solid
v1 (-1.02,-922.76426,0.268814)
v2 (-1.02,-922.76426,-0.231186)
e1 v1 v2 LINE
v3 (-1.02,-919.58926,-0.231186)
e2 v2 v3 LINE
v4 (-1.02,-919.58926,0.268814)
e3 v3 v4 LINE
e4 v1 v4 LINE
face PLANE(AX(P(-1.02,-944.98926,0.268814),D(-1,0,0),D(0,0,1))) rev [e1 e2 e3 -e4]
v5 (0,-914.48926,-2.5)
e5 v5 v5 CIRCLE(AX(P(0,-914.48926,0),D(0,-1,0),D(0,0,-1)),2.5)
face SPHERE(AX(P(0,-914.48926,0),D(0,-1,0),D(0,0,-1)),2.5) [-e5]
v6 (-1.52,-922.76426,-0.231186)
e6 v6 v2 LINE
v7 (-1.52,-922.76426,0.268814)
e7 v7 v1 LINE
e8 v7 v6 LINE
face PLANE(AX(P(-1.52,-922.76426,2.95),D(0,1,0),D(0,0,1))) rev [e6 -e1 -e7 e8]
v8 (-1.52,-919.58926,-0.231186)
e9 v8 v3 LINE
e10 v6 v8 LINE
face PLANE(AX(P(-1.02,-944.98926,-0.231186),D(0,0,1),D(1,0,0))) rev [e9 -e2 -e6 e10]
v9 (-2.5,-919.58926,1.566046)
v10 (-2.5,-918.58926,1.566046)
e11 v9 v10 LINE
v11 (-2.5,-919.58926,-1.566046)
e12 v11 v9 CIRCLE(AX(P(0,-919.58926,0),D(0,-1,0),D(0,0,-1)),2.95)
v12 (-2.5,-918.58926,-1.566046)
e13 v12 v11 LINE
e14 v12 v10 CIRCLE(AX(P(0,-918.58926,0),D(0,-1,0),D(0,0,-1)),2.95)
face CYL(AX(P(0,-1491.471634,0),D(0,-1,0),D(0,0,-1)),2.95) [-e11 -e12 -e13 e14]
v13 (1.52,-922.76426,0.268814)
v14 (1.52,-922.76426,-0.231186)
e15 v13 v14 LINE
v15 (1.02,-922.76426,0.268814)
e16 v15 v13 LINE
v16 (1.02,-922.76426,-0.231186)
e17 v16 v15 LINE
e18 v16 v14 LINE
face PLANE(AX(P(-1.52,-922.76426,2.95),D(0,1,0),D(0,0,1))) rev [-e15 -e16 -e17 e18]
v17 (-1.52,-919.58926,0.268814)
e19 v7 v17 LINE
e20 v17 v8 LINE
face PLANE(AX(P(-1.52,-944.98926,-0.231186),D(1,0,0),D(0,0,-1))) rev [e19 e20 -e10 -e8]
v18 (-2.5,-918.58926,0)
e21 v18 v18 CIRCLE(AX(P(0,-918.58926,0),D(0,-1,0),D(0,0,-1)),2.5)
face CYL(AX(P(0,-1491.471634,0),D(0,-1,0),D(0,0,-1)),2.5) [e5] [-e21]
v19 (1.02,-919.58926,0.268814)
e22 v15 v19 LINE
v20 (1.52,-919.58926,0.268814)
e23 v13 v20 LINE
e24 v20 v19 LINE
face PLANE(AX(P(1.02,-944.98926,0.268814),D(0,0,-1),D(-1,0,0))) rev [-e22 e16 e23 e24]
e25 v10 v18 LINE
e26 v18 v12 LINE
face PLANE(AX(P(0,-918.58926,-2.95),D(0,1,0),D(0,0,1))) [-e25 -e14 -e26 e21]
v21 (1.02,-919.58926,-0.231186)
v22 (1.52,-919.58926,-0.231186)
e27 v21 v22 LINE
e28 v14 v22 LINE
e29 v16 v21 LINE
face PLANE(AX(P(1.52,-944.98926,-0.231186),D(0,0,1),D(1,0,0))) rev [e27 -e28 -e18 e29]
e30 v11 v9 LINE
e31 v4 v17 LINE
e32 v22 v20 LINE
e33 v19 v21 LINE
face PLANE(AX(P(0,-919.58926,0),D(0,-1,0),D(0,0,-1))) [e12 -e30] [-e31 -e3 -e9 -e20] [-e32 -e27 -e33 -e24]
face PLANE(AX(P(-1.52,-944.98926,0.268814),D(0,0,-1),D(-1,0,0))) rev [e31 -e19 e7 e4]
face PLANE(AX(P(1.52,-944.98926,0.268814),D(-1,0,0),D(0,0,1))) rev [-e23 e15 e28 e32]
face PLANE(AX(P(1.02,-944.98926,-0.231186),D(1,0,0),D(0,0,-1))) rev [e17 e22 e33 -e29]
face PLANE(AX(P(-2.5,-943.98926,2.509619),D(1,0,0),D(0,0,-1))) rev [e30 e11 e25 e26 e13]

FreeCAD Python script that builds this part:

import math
import FreeCAD as App
import Part
import Sketcher

V = App.Vector


def add_polygon(sketch, points):
    """Adds a closed chain of lines whose ends are joined by coincident constraints."""
    first, n = sketch.GeometryCount, len(points)
    for a, b in zip(points, points[1:] + points[:1]):
        sketch.addGeometry(Part.LineSegment(App.Vector(*a, 0), App.Vector(*b, 0)), False)
    for i in range(n):
        sketch.addConstraint(Sketcher.Constraint("Coincident", first + i, 2, first + (i + 1) % n, 1))

doc = App.newDocument("Part")
body = doc.addObject("PartDesign::Body", "Body")

sketch1 = body.newObject("Sketcher::SketchObject", "Sketch")
sketch1.AttachmentSupport = (doc.getObject("YZ_Plane"), [""])
sketch1.MapMode = "FlatFace"
sketch1.addGeometry([
    Part.LineSegment(V(-919.58926, 0, 0), V(-919.58926, -2.95, 0)),
    Part.LineSegment(V(-919.58926, -2.95, 0), V(-918.58926, -2.95, 0)),
    Part.LineSegment(V(-918.58926, -2.95, 0), V(-918.58926, -2.5, 0)),
    Part.LineSegment(V(-918.58926, -2.5, 0), V(-914.48926, -2.5, 0)),
    Part.ArcOfCircle(Part.Circle(V(-914.48926, 0, 0), V(0, 0, 1), 2.5), math.radians(-90), math.radians(0)),
    Part.LineSegment(V(-911.98926, 0, 0), V(-919.58926, 0, 0)),
], False)
sketch1.addConstraint([
    Sketcher.Constraint("Coincident", 0, 2, 1, 1),
    Sketcher.Constraint("Coincident", 1, 2, 2, 1),
    Sketcher.Constraint("Coincident", 2, 2, 3, 1),
    Sketcher.Constraint("Tangent", 3, 2, 4, 1),
    Sketcher.Constraint("Coincident", 4, 2, 5, 1),
    Sketcher.Constraint("Coincident", 5, 2, 0, 1),
    Sketcher.Constraint("Vertical", 0),
    Sketcher.Constraint("Horizontal", 1),
    Sketcher.Constraint("Vertical", 2),
    Sketcher.Constraint("Horizontal", 3),
    Sketcher.Constraint("Horizontal", 5),
    Sketcher.Constraint("PointOnObject", 4, 3, -1),
    Sketcher.Constraint("PointOnObject", 4, 2, -1),
    Sketcher.Constraint("Radius", 4, 2.5),
    Sketcher.Constraint("DistanceX", 1, 1, 1, 2, 1.0),
    Sketcher.Constraint("DistanceX", 3, 1, 3, 2, 4.1),
    Sketcher.Constraint("DistanceY", 0, 2, 0, 1, 2.95),
    Sketcher.Constraint("DistanceX", 4, 3, -1, 1, 914.48926),
])
revolution = body.newObject("PartDesign::Revolution", "Revolution")
revolution.Profile = sketch1
revolution.ReferenceAxis = (sketch1, ["H_Axis"])
revolution.Angle = 360

sketch2 = body.newObject("Sketcher::SketchObject", "Sketch001")
sketch2.AttachmentSupport = (doc.getObject("XZ_Plane"), [""])
sketch2.MapMode = "FlatFace"
sketch2.AttachmentOffset = App.Placement(V(0, 0, 919.58926), App.Rotation())
add_polygon(sketch2, [(1.02, 0.268814), (1.02, -0.231186), (1.52, -0.231186), (1.52, 0.268814)])
add_polygon(sketch2, [(-1.52, 0.268814), (-1.52, -0.231186), (-1.02, -0.231186), (-1.02, 0.268814)])
sketch2.addConstraint([
    Sketcher.Constraint("Vertical", 0),
    Sketcher.Constraint("Horizontal", 1),
    Sketcher.Constraint("Vertical", 2),
    Sketcher.Constraint("Horizontal", 3),
    Sketcher.Constraint("Vertical", 4),
    Sketcher.Constraint("Horizontal", 5),
    Sketcher.Constraint("Vertical", 6),
    Sketcher.Constraint("Horizontal", 7),
    Sketcher.Constraint("Symmetric", 1, 2, 4, 2, -2),
    Sketcher.Constraint("Symmetric", 3, 2, 6, 2, -2),
    Sketcher.Constraint("Equal", 7, 0),
    Sketcher.Constraint("DistanceX", 1, 1, 1, 2, 0.5),
    Sketcher.Constraint("DistanceX", -1, 1, 0, 2, 1.02),
    Sketcher.Constraint("DistanceY", 0, 2, -1, 1, 0.231186),
])
pad1 = body.newObject("PartDesign::Pad", "Pad")
pad1.Profile = sketch2
pad1.Length = 25.4

sketch3 = body.newObject("Sketcher::SketchObject", "Sketch002")
sketch3.AttachmentSupport = (doc.getObject("XZ_Plane"), [""])
sketch3.MapMode = "FlatFace"
sketch3.AttachmentOffset = App.Placement(V(0, 0, 918.58926), App.Rotation())
add_polygon(sketch3, [(-3.412534, -3.076485), (-3.412534, 2.509619), (-2.5, 2.509619), (-2.5, -3.076485)])
sketch3.addConstraint([
    Sketcher.Constraint("Vertical", 0),
    Sketcher.Constraint("Horizontal", 1),
    Sketcher.Constraint("Vertical", 2),
    Sketcher.Constraint("Horizontal", 3),
    Sketcher.Constraint("DistanceX", 1, 2, -1, 1, 2.5),
    Sketcher.Constraint("DistanceX", 1, 1, 1, 2, 0.912534),
    Sketcher.Constraint("DistanceY", 0, 1, 0, 2, 5.586104),
    Sketcher.Constraint("DistanceY", -1, 1, 0, 2, 2.509619),
])
pocket1 = body.newObject("PartDesign::Pocket", "Pocket")
pocket1.Profile = sketch3
pocket1.Length = 25.4
pocket1.Reversed = True

sketch4 = body.newObject("Sketcher::SketchObject", "Sketch003")
sketch4.AttachmentSupport = (doc.getObject("XY_Plane"), [""])
sketch4.MapMode = "FlatFace"
sketch4.AttachmentOffset = App.Placement(V(0, 0, 0.268814), App.Rotation())
add_polygon(sketch4, [(-1.52, -943.98926), (-1.52, -944.98926), (-1.02, -944.98926), (-1.02, -943.98926)])
sketch4.addConstraint([
    Sketcher.Constraint("Vertical", 0),
    Sketcher.Constraint("Horizontal", 1),
    Sketcher.Constraint("Vertical", 2),
    Sketcher.Constraint("Horizontal", 3),
    Sketcher.Constraint("DistanceY", 0, 2, 0, 1, 1.0),
    Sketcher.Constraint("DistanceX", 1, 1, 1, 2, 0.5),
    Sketcher.Constraint("DistanceX", 0, 2, -1, 1, 1.52),
    Sketcher.Constraint("DistanceY", 0, 2, -1, 1, 944.98926),
])
pocket2 = body.newObject("PartDesign::Pocket", "Pocket001")
pocket2.Profile = sketch4
pocket2.Type = "UpToFirst"

sketch5 = body.newObject("Sketcher::SketchObject", "Sketch004")
sketch5.AttachmentSupport = (doc.getObject("XY_Plane"), [""])
sketch5.MapMode = "FlatFace"
sketch5.AttachmentOffset = App.Placement(V(0, 0, -0.231186), App.Rotation())
add_polygon(sketch5, [(1.52, -922.76426), (1.52, -944.98926), (-1.52, -944.98926), (-1.52, -922.76426)])
sketch5.addConstraint([
    Sketcher.Constraint("Vertical", 0),
    Sketcher.Constraint("Horizontal", 1),
    Sketcher.Constraint("Vertical", 2),
    Sketcher.Constraint("Horizontal", 3),
    Sketcher.Constraint("DistanceX", 1, 2, 1, 1, 3.04),
    Sketcher.Constraint("DistanceY", 0, 2, 0, 1, 22.225),
    Sketcher.Constraint("DistanceX", -1, 1, 0, 2, 1.52),
    Sketcher.Constraint("DistanceY", 0, 2, -1, 1, 944.98926),
])
pocket3 = body.newObject("PartDesign::Pocket", "Pocket002")
pocket3.Profile = sketch5
pocket3.Type = "ThroughAll"
pocket3.Reversed = True

doc.recompute()
